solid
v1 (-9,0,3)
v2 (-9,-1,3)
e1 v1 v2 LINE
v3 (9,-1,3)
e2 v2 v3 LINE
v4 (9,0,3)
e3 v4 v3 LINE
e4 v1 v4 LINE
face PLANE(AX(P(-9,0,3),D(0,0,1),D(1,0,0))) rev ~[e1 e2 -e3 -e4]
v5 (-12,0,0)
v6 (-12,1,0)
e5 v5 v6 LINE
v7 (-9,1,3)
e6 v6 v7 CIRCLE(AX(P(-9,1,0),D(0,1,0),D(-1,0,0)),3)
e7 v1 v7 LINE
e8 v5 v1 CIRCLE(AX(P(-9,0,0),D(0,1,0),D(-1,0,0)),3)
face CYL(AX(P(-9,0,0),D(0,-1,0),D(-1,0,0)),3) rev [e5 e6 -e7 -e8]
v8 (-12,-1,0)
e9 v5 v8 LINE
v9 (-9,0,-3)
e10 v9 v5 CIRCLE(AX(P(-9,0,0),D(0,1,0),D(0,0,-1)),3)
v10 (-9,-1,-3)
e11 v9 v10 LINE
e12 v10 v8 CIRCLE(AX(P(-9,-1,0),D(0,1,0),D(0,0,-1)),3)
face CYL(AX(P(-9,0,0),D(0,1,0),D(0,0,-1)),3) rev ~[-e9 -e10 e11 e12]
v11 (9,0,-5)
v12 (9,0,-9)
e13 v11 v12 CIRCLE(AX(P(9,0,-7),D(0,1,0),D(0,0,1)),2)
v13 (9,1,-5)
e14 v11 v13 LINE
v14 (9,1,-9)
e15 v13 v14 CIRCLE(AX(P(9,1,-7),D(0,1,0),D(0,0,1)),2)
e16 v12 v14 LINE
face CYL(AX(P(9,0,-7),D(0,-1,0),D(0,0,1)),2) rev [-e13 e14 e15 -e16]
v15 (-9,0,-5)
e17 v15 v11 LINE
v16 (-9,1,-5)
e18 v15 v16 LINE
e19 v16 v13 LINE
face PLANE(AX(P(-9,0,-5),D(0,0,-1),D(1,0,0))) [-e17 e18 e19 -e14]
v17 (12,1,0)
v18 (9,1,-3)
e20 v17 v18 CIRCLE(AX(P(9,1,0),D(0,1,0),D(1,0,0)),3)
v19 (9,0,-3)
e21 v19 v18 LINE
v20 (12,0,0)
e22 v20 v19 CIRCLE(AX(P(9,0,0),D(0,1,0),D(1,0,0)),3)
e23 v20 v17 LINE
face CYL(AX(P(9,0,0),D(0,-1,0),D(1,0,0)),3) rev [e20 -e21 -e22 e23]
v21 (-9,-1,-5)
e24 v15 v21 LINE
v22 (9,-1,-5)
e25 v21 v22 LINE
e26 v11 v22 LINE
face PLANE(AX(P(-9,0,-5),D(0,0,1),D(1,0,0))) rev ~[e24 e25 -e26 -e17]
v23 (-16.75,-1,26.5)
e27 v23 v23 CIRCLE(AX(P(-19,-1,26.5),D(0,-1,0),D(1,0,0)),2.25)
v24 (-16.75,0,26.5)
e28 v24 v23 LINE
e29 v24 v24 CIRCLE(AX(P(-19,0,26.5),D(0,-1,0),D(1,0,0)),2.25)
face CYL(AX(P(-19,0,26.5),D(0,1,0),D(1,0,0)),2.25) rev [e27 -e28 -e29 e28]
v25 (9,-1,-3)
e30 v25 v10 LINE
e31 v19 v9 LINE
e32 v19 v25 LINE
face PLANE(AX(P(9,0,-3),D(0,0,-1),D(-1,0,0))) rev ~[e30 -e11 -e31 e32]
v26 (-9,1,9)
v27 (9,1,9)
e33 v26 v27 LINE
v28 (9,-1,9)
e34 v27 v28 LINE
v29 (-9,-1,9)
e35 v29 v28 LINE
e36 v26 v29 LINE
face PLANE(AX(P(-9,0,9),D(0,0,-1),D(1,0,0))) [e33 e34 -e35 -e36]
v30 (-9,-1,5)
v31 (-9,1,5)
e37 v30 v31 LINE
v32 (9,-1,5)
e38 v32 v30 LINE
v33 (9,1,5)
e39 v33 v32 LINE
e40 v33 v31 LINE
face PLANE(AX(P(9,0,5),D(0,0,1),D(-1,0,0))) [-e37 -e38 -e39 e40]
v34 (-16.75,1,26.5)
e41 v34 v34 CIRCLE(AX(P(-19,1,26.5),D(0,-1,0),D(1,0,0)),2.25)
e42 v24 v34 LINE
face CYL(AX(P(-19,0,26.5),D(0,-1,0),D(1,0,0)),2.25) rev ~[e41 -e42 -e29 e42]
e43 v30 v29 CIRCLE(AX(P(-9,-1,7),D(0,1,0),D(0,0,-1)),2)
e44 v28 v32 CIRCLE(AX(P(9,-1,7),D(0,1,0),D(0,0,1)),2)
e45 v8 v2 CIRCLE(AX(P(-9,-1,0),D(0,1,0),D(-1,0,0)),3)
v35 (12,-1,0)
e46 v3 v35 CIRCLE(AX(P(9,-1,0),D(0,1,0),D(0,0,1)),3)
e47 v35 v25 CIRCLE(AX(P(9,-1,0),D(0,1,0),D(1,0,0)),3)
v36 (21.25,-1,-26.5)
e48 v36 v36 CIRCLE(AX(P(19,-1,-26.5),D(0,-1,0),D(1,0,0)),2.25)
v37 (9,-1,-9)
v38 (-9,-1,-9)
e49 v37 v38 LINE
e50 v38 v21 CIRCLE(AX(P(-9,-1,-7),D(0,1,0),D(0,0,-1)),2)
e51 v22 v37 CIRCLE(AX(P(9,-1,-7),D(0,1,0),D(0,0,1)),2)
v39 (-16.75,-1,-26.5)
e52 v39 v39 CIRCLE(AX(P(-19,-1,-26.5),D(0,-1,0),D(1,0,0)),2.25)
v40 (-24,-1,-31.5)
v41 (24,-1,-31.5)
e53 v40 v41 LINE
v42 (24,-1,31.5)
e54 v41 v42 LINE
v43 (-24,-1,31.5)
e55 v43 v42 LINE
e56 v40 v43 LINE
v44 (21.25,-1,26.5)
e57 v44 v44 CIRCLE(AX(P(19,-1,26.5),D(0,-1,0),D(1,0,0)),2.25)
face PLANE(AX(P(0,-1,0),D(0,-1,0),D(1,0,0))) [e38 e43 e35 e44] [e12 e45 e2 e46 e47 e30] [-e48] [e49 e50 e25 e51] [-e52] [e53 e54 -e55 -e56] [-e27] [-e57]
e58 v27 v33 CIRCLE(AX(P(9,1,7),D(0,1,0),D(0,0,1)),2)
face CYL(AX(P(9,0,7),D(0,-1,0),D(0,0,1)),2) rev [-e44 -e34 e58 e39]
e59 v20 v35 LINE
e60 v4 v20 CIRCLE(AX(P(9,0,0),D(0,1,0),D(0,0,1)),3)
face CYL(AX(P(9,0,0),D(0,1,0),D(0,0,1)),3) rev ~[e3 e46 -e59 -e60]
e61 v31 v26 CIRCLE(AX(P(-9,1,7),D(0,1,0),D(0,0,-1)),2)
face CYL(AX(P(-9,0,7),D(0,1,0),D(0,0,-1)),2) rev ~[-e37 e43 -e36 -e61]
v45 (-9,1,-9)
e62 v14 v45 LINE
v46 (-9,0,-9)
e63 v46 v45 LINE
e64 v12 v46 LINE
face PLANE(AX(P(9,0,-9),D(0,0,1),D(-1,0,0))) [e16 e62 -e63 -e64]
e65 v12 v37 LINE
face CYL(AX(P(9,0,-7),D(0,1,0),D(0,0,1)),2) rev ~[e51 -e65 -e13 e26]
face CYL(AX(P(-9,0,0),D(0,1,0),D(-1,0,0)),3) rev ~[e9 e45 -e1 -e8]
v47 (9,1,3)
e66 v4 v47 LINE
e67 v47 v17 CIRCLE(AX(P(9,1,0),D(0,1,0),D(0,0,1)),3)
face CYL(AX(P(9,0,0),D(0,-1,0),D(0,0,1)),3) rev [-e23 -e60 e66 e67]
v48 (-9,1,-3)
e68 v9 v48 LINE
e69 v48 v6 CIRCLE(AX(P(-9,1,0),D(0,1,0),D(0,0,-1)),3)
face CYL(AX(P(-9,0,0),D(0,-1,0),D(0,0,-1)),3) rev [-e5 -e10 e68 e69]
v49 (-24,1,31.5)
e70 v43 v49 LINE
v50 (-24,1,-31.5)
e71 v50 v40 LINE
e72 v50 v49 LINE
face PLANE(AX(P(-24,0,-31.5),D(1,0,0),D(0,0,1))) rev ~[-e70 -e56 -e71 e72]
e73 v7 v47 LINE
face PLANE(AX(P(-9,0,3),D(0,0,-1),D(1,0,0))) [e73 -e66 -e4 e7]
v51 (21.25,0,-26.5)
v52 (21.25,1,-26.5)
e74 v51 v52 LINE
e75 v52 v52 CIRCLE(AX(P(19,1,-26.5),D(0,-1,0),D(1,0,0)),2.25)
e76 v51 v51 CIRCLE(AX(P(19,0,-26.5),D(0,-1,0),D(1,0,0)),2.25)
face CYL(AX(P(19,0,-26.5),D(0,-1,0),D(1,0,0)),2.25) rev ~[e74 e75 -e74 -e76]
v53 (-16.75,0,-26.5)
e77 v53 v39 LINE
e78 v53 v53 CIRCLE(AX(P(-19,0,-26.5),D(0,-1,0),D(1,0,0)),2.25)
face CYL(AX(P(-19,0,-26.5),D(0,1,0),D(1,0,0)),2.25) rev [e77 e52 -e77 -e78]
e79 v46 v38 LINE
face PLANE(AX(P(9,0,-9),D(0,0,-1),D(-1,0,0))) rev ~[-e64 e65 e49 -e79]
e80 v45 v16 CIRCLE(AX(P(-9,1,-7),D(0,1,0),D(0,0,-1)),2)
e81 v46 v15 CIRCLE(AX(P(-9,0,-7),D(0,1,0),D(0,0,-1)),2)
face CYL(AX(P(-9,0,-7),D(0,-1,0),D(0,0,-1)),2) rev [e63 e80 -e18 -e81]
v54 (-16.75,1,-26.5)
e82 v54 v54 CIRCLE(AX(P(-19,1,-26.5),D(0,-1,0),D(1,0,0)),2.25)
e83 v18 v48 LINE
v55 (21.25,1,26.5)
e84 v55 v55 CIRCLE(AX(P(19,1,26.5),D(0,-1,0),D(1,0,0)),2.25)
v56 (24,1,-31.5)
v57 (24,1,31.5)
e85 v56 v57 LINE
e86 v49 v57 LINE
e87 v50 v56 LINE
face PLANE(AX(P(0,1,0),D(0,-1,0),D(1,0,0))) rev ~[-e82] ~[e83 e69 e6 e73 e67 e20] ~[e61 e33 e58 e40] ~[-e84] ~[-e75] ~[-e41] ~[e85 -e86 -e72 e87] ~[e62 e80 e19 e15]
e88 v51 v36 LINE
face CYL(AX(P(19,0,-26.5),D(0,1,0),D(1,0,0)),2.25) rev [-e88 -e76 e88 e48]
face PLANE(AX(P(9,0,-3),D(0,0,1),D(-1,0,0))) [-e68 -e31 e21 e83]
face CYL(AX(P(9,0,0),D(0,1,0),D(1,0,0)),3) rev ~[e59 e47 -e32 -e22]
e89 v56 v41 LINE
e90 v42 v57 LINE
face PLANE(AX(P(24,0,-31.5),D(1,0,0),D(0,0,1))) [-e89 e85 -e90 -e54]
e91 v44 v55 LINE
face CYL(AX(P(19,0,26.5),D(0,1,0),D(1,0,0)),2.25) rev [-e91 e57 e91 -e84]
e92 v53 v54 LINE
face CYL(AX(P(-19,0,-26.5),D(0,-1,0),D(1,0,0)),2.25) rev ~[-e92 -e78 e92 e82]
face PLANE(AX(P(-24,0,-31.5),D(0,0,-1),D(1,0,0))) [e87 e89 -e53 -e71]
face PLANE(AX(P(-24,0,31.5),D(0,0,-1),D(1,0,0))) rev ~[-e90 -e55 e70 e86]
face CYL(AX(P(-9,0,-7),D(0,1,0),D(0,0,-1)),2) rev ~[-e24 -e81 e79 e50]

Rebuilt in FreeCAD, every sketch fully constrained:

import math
import FreeCAD as App
import Part
import Sketcher
Q = App.Units.Quantity


def add_polygon(sketch, points):
    """Adds a closed chain of lines whose ends are joined by coincident constraints."""
    first, n = sketch.GeometryCount, len(points)
    for a, b in zip(points, points[1:] + points[:1]):
        sketch.addGeometry(Part.LineSegment(App.Vector(*a, 0), App.Vector(*b, 0)), False)
    for i in range(n):
        sketch.addConstraint(Sketcher.Constraint("Coincident", first + i, 2, first + (i + 1) % n, 1))

doc = App.newDocument("Part")
body = doc.addObject("PartDesign::Body", "Body")

sketch1 = body.newObject("Sketcher::SketchObject", "Sketch")
sketch1.AttachmentSupport = (doc.getObject("XZ_Plane"), [""])
sketch1.MapMode = "FlatFace"
add_polygon(sketch1, [(-24, 31.5), (-24, -31.5), (24, -31.5), (24, 31.5)])
sketch1.addGeometry(Part.Circle(App.Vector(-19, -26.5, 0), App.Vector(0, 0, 1), 2.2), False)
sketch1.addGeometry(Part.Circle(App.Vector(19, -26.5, 0), App.Vector(0, 0, 1), 2.2), False)
sketch1.addGeometry(Part.ArcOfCircle(Part.Circle(App.Vector(9, -7, 0), App.Vector(0, 0, 1), 2), math.radians(-90), math.radians(90)), False)
sketch1.addGeometry(Part.LineSegment(App.Vector(9, -9, 0), App.Vector(-9, -9, 0)), False)
sketch1.addGeometry(Part.ArcOfCircle(Part.Circle(App.Vector(-9, -7, 0), App.Vector(0, 0, 1), 2), math.radians(90), math.radians(270)), False)
sketch1.addGeometry(Part.LineSegment(App.Vector(-9, -5, 0), App.Vector(9, -5, 0)), False)
sketch1.addGeometry(Part.Circle(App.Vector(-19, 26.5, 0), App.Vector(0, 0, 1), 2.2), False)
sketch1.addGeometry(Part.ArcOfCircle(Part.Circle(App.Vector(9, 0, 0), App.Vector(0, 0, 1), 3), math.radians(-90), math.radians(0)), False)
sketch1.addGeometry(Part.LineSegment(App.Vector(9, -3, 0), App.Vector(-9, -3, 0)), False)
sketch1.addGeometry(Part.ArcOfCircle(Part.Circle(App.Vector(-9, 0, 0), App.Vector(0, 0, 1), 3), math.radians(180), math.radians(270)), False)
sketch1.addGeometry(Part.ArcOfCircle(Part.Circle(App.Vector(-9, 0, 0), App.Vector(0, 0, 1), 3), math.radians(90), math.radians(180)), False)
sketch1.addGeometry(Part.LineSegment(App.Vector(-9, 3, 0), App.Vector(9, 3, 0)), False)
sketch1.addGeometry(Part.ArcOfCircle(Part.Circle(App.Vector(9, 0, 0), App.Vector(0, 0, 1), 3), math.radians(0), math.radians(90)), False)
sketch1.addGeometry(Part.ArcOfCircle(Part.Circle(App.Vector(9, 7, 0), App.Vector(0, 0, 1), 2), math.radians(-90), math.radians(90)), False)
sketch1.addGeometry(Part.LineSegment(App.Vector(9, 5, 0), App.Vector(-9, 5, 0)), False)
sketch1.addGeometry(Part.ArcOfCircle(Part.Circle(App.Vector(-9, 7, 0), App.Vector(0, 0, 1), 2), math.radians(90), math.radians(270)), False)
sketch1.addGeometry(Part.LineSegment(App.Vector(-9, 9, 0), App.Vector(9, 9, 0)), False)
sketch1.addGeometry(Part.Circle(App.Vector(19, 26.5, 0), App.Vector(0, 0, 1), 2.2), False)
sketch1.addConstraint(Sketcher.Constraint("Tangent", 6, 1, 7, 1))
sketch1.addConstraint(Sketcher.Constraint("Tangent", 7, 2, 8, 2))
sketch1.addConstraint(Sketcher.Constraint("Tangent", 8, 1, 9, 1))
sketch1.addConstraint(Sketcher.Constraint("Tangent", 9, 2, 6, 2))
sketch1.addConstraint(Sketcher.Constraint("Tangent", 11, 1, 12, 1))
sketch1.addConstraint(Sketcher.Constraint("Tangent", 12, 2, 13, 2))
sketch1.addConstraint(Sketcher.Constraint("Tangent", 13, 1, 14, 2))
sketch1.addConstraint(Sketcher.Constraint("Tangent", 14, 1, 15, 1))
sketch1.addConstraint(Sketcher.Constraint("Tangent", 15, 2, 16, 2))
sketch1.addConstraint(Sketcher.Constraint("Tangent", 16, 1, 11, 2))
sketch1.addConstraint(Sketcher.Constraint("Tangent", 17, 1, 18, 1))
sketch1.addConstraint(Sketcher.Constraint("Tangent", 18, 2, 19, 2))
sketch1.addConstraint(Sketcher.Constraint("Tangent", 19, 1, 20, 1))
sketch1.addConstraint(Sketcher.Constraint("Tangent", 20, 2, 17, 2))
sketch1.addConstraint(Sketcher.Constraint("Vertical", 0))
sketch1.addConstraint(Sketcher.Constraint("Horizontal", 1))
sketch1.addConstraint(Sketcher.Constraint("Vertical", 2))
sketch1.addConstraint(Sketcher.Constraint("Horizontal", 3))
sketch1.addConstraint(Sketcher.Constraint("Horizontal", 7))
sketch1.addConstraint(Sketcher.Constraint("Horizontal", 9))
sketch1.addConstraint(Sketcher.Constraint("Horizontal", 12))
sketch1.addConstraint(Sketcher.Constraint("Horizontal", 15))
sketch1.addConstraint(Sketcher.Constraint("Horizontal", 18))
sketch1.addConstraint(Sketcher.Constraint("Horizontal", 20))
sketch1.addConstraint(Sketcher.Constraint("Equal", 4, 5))
sketch1.addConstraint(Sketcher.Constraint("Equal", 5, 10))
sketch1.addConstraint(Sketcher.Constraint("Equal", 11, 13))
sketch1.addConstraint(Sketcher.Constraint("Equal", 13, 14))
sketch1.addConstraint(Sketcher.Constraint("Equal", 8, 17))
sketch1.addConstraint(Sketcher.Constraint("Equal", 10, 21))
sketch1.addConstraint(Sketcher.Constraint("Symmetric", 5, 3, 10, 3, -1, 1))
sketch1.addConstraint(Sketcher.Constraint("Symmetric", 11, 3, 13, 3, -1, 1))
sketch1.addConstraint(Sketcher.Constraint("Symmetric", 8, 3, 17, 3, -1, 1))
sketch1.addConstraint(Sketcher.Constraint("Symmetric", 4, 3, 21, 3, -1, 1))
sketch1.addConstraint(Sketcher.Constraint("Symmetric", 0, 2, 2, 2, -1, 1))
sketch1.addConstraint(Sketcher.Constraint("Symmetric", 4, 3, 5, 3, -2))
sketch1.addConstraint(Sketcher.Constraint("PointOnObject", 13, 1, -1))
sketch1.addConstraint(Sketcher.Constraint("PointOnObject", 16, 1, -1))
sketch1.addConstraint(Sketcher.Constraint("Vertical", 6, 3, 11, 3))
sketch1.addConstraint(Sketcher.Constraint("Vertical", 8, 3, 13, 3))
sketch1.addConstraint(Sketcher.Constraint("Vertical", 14, 3, 19, 3))
sketch1.addConstraint(Sketcher.Constraint("Radius", 6, Q("2 mm")))
sketch1.addConstraint(Sketcher.Constraint("Radius", 11, Q("3 mm")))
sketch1.addConstraint(Sketcher.Constraint("Diameter", 4, Q("4.5 mm")))
sketch1.addConstraint(Sketcher.Constraint("DistanceX", 1, 1, 1, 2, Q("48 mm")))
sketch1.addConstraint(Sketcher.Constraint("DistanceX", 7, 2, 7, 1, Q("18 mm")))
sketch1.addConstraint(Sketcher.Constraint("DistanceY", 0, 2, 0, 1, Q("63 mm")))
sketch1.addConstraint(Sketcher.Constraint("DistanceX", 4, 3, -1, 1, Q("19 mm")))
sketch1.addConstraint(Sketcher.Constraint("DistanceY", 6, 3, -1, 1, Q("7 mm")))
sketch1.addConstraint(Sketcher.Constraint("DistanceY", 4, 3, 10, 3, Q("53 mm")))
pad1 = body.newObject("PartDesign::Pad", "Pad")
pad1.Profile = sketch1
pad1.Length = 2
pad1.Midplane = True

doc.recompute()
